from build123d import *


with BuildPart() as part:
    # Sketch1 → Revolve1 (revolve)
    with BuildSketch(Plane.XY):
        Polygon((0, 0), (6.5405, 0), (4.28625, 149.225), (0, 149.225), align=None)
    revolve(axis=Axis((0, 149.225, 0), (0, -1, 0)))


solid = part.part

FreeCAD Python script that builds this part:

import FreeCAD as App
import Part
import Sketcher

V = App.Vector
Q = App.Units.Quantity


def add_polygon(sketch, points):
    """Adds a closed chain of lines whose ends are joined by coincident constraints."""
    first, n = sketch.GeometryCount, len(points)
    for a, b in zip(points, points[1:] + points[:1]):
        sketch.addGeometry(Part.LineSegment(App.Vector(*a, 0), App.Vector(*b, 0)), False)
    for i in range(n):
        sketch.addConstraint(Sketcher.Constraint("Coincident", first + i, 2, first + (i + 1) % n, 1))

doc = App.newDocument("Part")
body = doc.addObject("PartDesign::Body", "Body")

# Sketch on XY plane
sketch1 = body.newObject("Sketcher::SketchObject", "Sketch")
sketch1.AttachmentSupport = (doc.getObject("XY_Plane"), [""])
sketch1.MapMode = "FlatFace"
add_polygon(sketch1, [(0, 0), (6.5405, 0), (4.28625, 149.225), (0, 149.225)])  # lines 0-3
sketch1.addConstraint([
    Sketcher.Constraint("Horizontal", 0),
    Sketcher.Constraint("Horizontal", 2),
    Sketcher.Constraint("Vertical", 3),
    Sketcher.Constraint("Coincident", 3, 2, -1, 1),
    Sketcher.Constraint("DistanceY", 3, 2, 3, 1, Q("5.875 in")),
    Sketcher.Constraint("DistanceX", 0, 1, 0, 2, Q("0.2575 in")),
    Sketcher.Constraint("DistanceX", 2, 2, 2, 1, 4.28625),
])
revolution = body.newObject("PartDesign::Revolution", "Revolution")
revolution.Profile = sketch1
revolution.ReferenceAxis = (sketch1, ["V_Axis"])
revolution.Angle = 360

doc.recompute()
